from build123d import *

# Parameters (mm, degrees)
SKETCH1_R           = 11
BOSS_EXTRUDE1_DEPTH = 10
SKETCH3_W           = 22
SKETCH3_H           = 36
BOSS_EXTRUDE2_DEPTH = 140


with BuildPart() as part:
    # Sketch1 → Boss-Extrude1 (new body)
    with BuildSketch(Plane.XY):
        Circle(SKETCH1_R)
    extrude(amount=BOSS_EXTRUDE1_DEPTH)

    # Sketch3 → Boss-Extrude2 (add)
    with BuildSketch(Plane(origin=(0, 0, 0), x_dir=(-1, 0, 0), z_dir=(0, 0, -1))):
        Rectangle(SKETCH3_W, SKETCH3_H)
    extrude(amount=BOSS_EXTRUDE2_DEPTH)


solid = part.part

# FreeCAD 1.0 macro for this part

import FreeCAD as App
import Part
import Sketcher

V = App.Vector

doc = App.newDocument("Part")
body = doc.addObject("PartDesign::Body", "Body")

# Sketch on XY plane
sketch1 = doc.addObject("Sketcher::SketchObject", "Sketch")
body.addObject(sketch1)
sketch1.AttachmentSupport = (doc.XY_Plane, [""])
sketch1.MapMode = "FlatFace"
sketch1.addGeometry(Part.Circle(V(0, 0, 0), V(0, 0, 1), 11), False)
sketch1.addConstraint(Sketcher.Constraint("Coincident", 0, 3, -1, 1))
sketch1.addConstraint(Sketcher.Constraint("Diameter", 0, 22.0))
pad1 = doc.addObject("PartDesign::Pad", "Pad")
body.addObject(pad1)
pad1.Profile = sketch1
pad1.Length = 10

# Sketch on XY plane
sketch2 = doc.addObject("Sketcher::SketchObject", "Sketch001")
body.addObject(sketch2)
sketch2.AttachmentSupport = (doc.XY_Plane, [""])
sketch2.MapMode = "FlatFace"
sketch2.addGeometry(Part.LineSegment(V(11, 18, 0), V(11, -18, 0)), False)
sketch2.addGeometry(Part.LineSegment(V(11, -18, 0), V(-11, -18, 0)), False)
sketch2.addGeometry(Part.LineSegment(V(-11, -18, 0), V(-11, 18, 0)), False)
sketch2.addGeometry(Part.LineSegment(V(-11, 18, 0), V(11, 18, 0)), False)
sketch2.addConstraint(Sketcher.Constraint("Coincident", 0, 2, 1, 1))
sketch2.addConstraint(Sketcher.Constraint("Coincident", 1, 2, 2, 1))
sketch2.addConstraint(Sketcher.Constraint("Coincident", 2, 2, 3, 1))
sketch2.addConstraint(Sketcher.Constraint("Coincident", 3, 2, 0, 1))
sketch2.addConstraint(Sketcher.Constraint("Vertical", 0))
sketch2.addConstraint(Sketcher.Constraint("Horizontal", 1))
sketch2.addConstraint(Sketcher.Constraint("Vertical", 2))
sketch2.addConstraint(Sketcher.Constraint("Horizontal", 3))
sketch2.addConstraint(Sketcher.Constraint("Symmetric", 0, 2, 2, 2, -1, 1))
sketch2.addConstraint(Sketcher.Constraint("DistanceX", 1, 2, 1, 1, 22.0))
sketch2.addConstraint(Sketcher.Constraint("DistanceY", 0, 2, 0, 1, 36.0))
pad2 = doc.addObject("PartDesign::Pad", "Pad001")
body.addObject(pad2)
pad2.Profile = sketch2
pad2.Length = 140
pad2.Reversed = True

doc.recompute()
